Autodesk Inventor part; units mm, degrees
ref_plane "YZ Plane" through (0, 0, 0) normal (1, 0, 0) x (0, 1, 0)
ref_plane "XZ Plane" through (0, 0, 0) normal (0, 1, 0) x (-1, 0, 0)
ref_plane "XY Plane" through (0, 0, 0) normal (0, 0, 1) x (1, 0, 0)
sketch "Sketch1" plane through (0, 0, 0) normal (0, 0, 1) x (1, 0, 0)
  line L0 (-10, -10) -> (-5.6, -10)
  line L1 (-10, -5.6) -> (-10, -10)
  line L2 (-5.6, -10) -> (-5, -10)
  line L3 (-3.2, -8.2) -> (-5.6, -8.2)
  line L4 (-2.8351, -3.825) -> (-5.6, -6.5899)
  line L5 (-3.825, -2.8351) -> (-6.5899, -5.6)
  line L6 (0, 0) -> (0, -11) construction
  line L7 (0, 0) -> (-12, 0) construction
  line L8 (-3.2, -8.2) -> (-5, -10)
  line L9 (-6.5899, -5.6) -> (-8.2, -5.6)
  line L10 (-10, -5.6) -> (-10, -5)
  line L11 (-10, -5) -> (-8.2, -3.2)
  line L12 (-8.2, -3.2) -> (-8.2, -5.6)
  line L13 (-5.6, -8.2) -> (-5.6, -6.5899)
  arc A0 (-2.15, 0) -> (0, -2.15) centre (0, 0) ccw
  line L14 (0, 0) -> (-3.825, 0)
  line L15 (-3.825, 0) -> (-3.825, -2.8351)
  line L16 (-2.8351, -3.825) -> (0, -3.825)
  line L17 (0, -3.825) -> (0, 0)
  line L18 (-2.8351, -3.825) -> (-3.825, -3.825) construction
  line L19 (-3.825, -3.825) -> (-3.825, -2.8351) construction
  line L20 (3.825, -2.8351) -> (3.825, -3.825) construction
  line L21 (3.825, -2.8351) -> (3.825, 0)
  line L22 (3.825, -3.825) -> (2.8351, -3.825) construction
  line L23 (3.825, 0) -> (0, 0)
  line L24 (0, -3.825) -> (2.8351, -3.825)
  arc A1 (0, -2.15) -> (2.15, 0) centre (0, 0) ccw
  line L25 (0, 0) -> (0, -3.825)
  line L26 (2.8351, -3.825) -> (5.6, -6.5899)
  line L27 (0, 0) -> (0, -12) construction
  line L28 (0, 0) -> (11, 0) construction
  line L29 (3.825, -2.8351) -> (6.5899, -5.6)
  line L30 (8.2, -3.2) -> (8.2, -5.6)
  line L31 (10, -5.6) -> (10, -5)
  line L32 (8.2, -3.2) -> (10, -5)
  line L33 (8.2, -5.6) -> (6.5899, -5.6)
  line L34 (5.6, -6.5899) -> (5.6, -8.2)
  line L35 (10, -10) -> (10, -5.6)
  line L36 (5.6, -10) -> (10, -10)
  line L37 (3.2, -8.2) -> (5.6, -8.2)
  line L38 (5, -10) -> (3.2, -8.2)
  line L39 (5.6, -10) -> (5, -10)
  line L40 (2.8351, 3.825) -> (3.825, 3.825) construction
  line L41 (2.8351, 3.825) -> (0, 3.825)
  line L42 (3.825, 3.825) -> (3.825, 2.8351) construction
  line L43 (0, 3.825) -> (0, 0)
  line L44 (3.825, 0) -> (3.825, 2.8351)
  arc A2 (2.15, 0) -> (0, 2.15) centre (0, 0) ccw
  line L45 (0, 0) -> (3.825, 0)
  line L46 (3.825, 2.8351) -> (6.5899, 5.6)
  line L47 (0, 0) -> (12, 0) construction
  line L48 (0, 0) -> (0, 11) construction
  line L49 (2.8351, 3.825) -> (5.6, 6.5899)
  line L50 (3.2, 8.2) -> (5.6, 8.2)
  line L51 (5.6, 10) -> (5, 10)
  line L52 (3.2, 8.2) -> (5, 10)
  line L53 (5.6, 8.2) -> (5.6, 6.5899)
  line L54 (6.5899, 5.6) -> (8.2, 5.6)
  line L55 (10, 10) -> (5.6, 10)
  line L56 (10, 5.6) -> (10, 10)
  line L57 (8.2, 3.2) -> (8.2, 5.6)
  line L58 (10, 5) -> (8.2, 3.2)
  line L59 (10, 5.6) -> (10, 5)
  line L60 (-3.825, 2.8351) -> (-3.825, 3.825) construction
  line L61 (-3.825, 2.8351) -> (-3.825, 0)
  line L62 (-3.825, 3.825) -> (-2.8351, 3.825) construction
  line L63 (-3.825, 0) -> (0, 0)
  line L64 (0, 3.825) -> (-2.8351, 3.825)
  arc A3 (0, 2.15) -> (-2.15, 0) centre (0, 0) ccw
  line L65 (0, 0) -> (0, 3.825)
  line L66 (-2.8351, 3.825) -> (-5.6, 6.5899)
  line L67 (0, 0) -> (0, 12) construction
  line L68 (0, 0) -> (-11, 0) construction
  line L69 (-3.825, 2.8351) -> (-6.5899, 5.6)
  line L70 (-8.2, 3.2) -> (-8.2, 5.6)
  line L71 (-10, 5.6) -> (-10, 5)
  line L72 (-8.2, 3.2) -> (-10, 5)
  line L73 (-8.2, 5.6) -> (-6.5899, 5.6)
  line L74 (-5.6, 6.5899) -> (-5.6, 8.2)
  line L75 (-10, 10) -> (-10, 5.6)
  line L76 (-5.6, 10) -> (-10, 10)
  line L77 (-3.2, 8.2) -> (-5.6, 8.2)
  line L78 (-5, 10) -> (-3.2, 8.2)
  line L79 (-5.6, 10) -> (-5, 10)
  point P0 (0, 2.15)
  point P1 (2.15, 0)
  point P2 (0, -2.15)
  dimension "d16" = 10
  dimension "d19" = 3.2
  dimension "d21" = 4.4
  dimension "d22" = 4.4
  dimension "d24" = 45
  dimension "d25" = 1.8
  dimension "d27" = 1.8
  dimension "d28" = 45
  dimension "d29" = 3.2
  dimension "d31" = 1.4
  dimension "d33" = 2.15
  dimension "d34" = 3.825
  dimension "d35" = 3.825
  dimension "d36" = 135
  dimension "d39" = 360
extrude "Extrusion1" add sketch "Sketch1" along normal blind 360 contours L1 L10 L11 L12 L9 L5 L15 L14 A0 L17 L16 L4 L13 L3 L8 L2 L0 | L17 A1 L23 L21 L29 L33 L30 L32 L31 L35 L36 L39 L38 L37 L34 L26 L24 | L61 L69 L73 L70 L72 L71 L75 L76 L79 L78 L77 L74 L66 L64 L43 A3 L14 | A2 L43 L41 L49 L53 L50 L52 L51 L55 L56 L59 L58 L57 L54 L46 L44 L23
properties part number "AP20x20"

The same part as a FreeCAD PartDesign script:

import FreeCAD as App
import Part
import Sketcher
Q = App.Units.Quantity

doc = App.newDocument("Part")
params = doc.addObject("Spreadsheet::Sheet", "Params")
for row, (alias, value) in enumerate([
    ("sketch1_diameter", "4.3 mm"),
    ("sketch1_width", "1.61 mm"),
    ("pad1_length", "360 mm"),
], start=1):
    params.set(f"A{row}", alias)
    params.set(f"B{row}", "=" + value)
    params.setAlias(f"B{row}", alias)

body = doc.addObject("PartDesign::Body", "Body")

# Sketch on XY plane
sketch1 = body.newObject("Sketcher::SketchObject", "Sketch")
sketch1.AttachmentSupport = (doc.getObject("XY_Plane"), [""])
sketch1.MapMode = "FlatFace"
sketch1.addGeometry([
    Part.LineSegment(App.Vector(-10, -10, 0), App.Vector(-5, -10, 0)),  # 0
    Part.LineSegment(App.Vector(-5, -10, 0), App.Vector(-3.2, -8.2, 0)),  # 1
    Part.LineSegment(App.Vector(-3.2, -8.2, 0), App.Vector(-5.6, -8.2, 0)),  # 2
    Part.LineSegment(App.Vector(-5.6, -8.2, 0), App.Vector(-5.6, -6.6, 0)),  # 3
    Part.LineSegment(App.Vector(-5.6, -6.6, 0), App.Vector(-2.8, -3.8, 0)),  # 4
    Part.LineSegment(App.Vector(-2.8, -3.8, 0), App.Vector(2.8, -3.8, 0)),  # 5
    Part.LineSegment(App.Vector(2.8, -3.8, 0), App.Vector(5.6, -6.6, 0)),  # 6
    Part.LineSegment(App.Vector(5.6, -6.6, 0), App.Vector(5.6, -8.2, 0)),  # 7
    Part.LineSegment(App.Vector(5.6, -8.2, 0), App.Vector(3.2, -8.2, 0)),  # 8
    Part.LineSegment(App.Vector(3.2, -8.2, 0), App.Vector(5, -10, 0)),  # 9
    Part.LineSegment(App.Vector(5, -10, 0), App.Vector(10, -10, 0)),  # 10
    Part.LineSegment(App.Vector(10, -10, 0), App.Vector(10, -5, 0)),  # 11
    Part.LineSegment(App.Vector(10, -5, 0), App.Vector(8.2, -3.2, 0)),  # 12
    Part.LineSegment(App.Vector(8.2, -3.2, 0), App.Vector(8.2, -5.6, 0)),  # 13
    Part.LineSegment(App.Vector(8.2, -5.6, 0), App.Vector(6.6, -5.6, 0)),  # 14
    Part.LineSegment(App.Vector(6.6, -5.6, 0), App.Vector(3.8, -2.8, 0)),  # 15
    Part.LineSegment(App.Vector(3.8, -2.8, 0), App.Vector(3.8, 2.8, 0)),  # 16
    Part.LineSegment(App.Vector(3.8, 2.8, 0), App.Vector(6.6, 5.6, 0)),  # 17
    Part.LineSegment(App.Vector(6.6, 5.6, 0), App.Vector(8.2, 5.6, 0)),  # 18
    Part.LineSegment(App.Vector(8.2, 5.6, 0), App.Vector(8.2, 3.2, 0)),  # 19
    Part.LineSegment(App.Vector(8.2, 3.2, 0), App.Vector(10, 5, 0)),  # 20
    Part.LineSegment(App.Vector(10, 5, 0), App.Vector(10, 10, 0)),  # 21
    Part.LineSegment(App.Vector(10, 10, 0), App.Vector(5, 10, 0)),  # 22
    Part.LineSegment(App.Vector(5, 10, 0), App.Vector(3.2, 8.2, 0)),  # 23
    Part.LineSegment(App.Vector(3.2, 8.2, 0), App.Vector(5.6, 8.2, 0)),  # 24
    Part.LineSegment(App.Vector(5.6, 8.2, 0), App.Vector(5.6, 6.6, 0)),  # 25
    Part.LineSegment(App.Vector(5.6, 6.6, 0), App.Vector(2.8, 3.8, 0)),  # 26
    Part.LineSegment(App.Vector(2.8, 3.8, 0), App.Vector(-2.8, 3.8, 0)),  # 27
    Part.LineSegment(App.Vector(-2.8, 3.8, 0), App.Vector(-5.6, 6.6, 0)),  # 28
    Part.LineSegment(App.Vector(-5.6, 6.6, 0), App.Vector(-5.6, 8.2, 0)),  # 29
    Part.LineSegment(App.Vector(-5.6, 8.2, 0), App.Vector(-3.2, 8.2, 0)),  # 30
    Part.LineSegment(App.Vector(-3.2, 8.2, 0), App.Vector(-5, 10, 0)),  # 31
    Part.LineSegment(App.Vector(-5, 10, 0), App.Vector(-10, 10, 0)),  # 32
    Part.LineSegment(App.Vector(-10, 10, 0), App.Vector(-10, 5, 0)),  # 33
    Part.LineSegment(App.Vector(-10, 5, 0), App.Vector(-8.2, 3.2, 0)),  # 34
    Part.LineSegment(App.Vector(-8.2, 3.2, 0), App.Vector(-8.2, 5.6, 0)),  # 35
    Part.LineSegment(App.Vector(-8.2, 5.6, 0), App.Vector(-6.6, 5.6, 0)),  # 36
    Part.LineSegment(App.Vector(-6.6, 5.6, 0), App.Vector(-3.8, 2.8, 0)),  # 37
    Part.LineSegment(App.Vector(-3.8, 2.8, 0), App.Vector(-3.8, -2.8, 0)),  # 38
    Part.LineSegment(App.Vector(-3.8, -2.8, 0), App.Vector(-6.6, -5.6, 0)),  # 39
    Part.LineSegment(App.Vector(-6.6, -5.6, 0), App.Vector(-8.2, -5.6, 0)),  # 40
    Part.LineSegment(App.Vector(-8.2, -5.6, 0), App.Vector(-8.2, -3.2, 0)),  # 41
    Part.LineSegment(App.Vector(-8.2, -3.2, 0), App.Vector(-10, -5, 0)),  # 42
    Part.LineSegment(App.Vector(-10, -5, 0), App.Vector(-10, -10, 0)),  # 43
    Part.Circle(App.Vector(0, 0, 0), App.Vector(0, 0, 1), 2.1),  # 44
], False)
sketch1.addConstraint([
    Sketcher.Constraint("Coincident", 0, 2, 1, 1),
    Sketcher.Constraint("Coincident", 1, 2, 2, 1),
    Sketcher.Constraint("Coincident", 2, 2, 3, 1),
    Sketcher.Constraint("Coincident", 3, 2, 4, 1),
    Sketcher.Constraint("Coincident", 4, 2, 5, 1),
    Sketcher.Constraint("Coincident", 5, 2, 6, 1),
    Sketcher.Constraint("Coincident", 6, 2, 7, 1),
    Sketcher.Constraint("Coincident", 7, 2, 8, 1),
    Sketcher.Constraint("Coincident", 8, 2, 9, 1),
    Sketcher.Constraint("Coincident", 9, 2, 10, 1),
    Sketcher.Constraint("Coincident", 10, 2, 11, 1),
    Sketcher.Constraint("Coincident", 11, 2, 12, 1),
    Sketcher.Constraint("Coincident", 12, 2, 13, 1),
    Sketcher.Constraint("Coincident", 13, 2, 14, 1),
    Sketcher.Constraint("Coincident", 14, 2, 15, 1),
    Sketcher.Constraint("Coincident", 15, 2, 16, 1),
    Sketcher.Constraint("Coincident", 16, 2, 17, 1),
    Sketcher.Constraint("Coincident", 17, 2, 18, 1),
    Sketcher.Constraint("Coincident", 18, 2, 19, 1),
    Sketcher.Constraint("Coincident", 19, 2, 20, 1),
    Sketcher.Constraint("Coincident", 20, 2, 21, 1),
    Sketcher.Constraint("Coincident", 21, 2, 22, 1),
    Sketcher.Constraint("Coincident", 22, 2, 23, 1),
    Sketcher.Constraint("Coincident", 23, 2, 24, 1),
    Sketcher.Constraint("Coincident", 24, 2, 25, 1),
    Sketcher.Constraint("Coincident", 25, 2, 26, 1),
    Sketcher.Constraint("Coincident", 26, 2, 27, 1),
    Sketcher.Constraint("Coincident", 27, 2, 28, 1),
    Sketcher.Constraint("Coincident", 28, 2, 29, 1),
    Sketcher.Constraint("Coincident", 29, 2, 30, 1),
    Sketcher.Constraint("Coincident", 30, 2, 31, 1),
    Sketcher.Constraint("Coincident", 31, 2, 32, 1),
    Sketcher.Constraint("Coincident", 32, 2, 33, 1),
    Sketcher.Constraint("Coincident", 33, 2, 34, 1),
    Sketcher.Constraint("Coincident", 34, 2, 35, 1),
    Sketcher.Constraint("Coincident", 35, 2, 36, 1),
    Sketcher.Constraint("Coincident", 36, 2, 37, 1),
    Sketcher.Constraint("Coincident", 37, 2, 38, 1),
    Sketcher.Constraint("Coincident", 38, 2, 39, 1),
    Sketcher.Constraint("Coincident", 39, 2, 40, 1),
    Sketcher.Constraint("Coincident", 40, 2, 41, 1),
    Sketcher.Constraint("Coincident", 41, 2, 42, 1),
    Sketcher.Constraint("Coincident", 42, 2, 43, 1),
    Sketcher.Constraint("Coincident", 43, 2, 0, 1),
    Sketcher.Constraint("Horizontal", 0),
    Sketcher.Constraint("Horizontal", 2),
    Sketcher.Constraint("Vertical", 3),
    Sketcher.Constraint("Horizontal", 5),
    Sketcher.Constraint("Vertical", 7),
    Sketcher.Constraint("Horizontal", 8),
    Sketcher.Constraint("Horizontal", 10),
    Sketcher.Constraint("Vertical", 11),
    Sketcher.Constraint("Vertical", 13),
    Sketcher.Constraint("Horizontal", 14),
    Sketcher.Constraint("Vertical", 16),
    Sketcher.Constraint("Horizontal", 18),
    Sketcher.Constraint("Vertical", 19),
    Sketcher.Constraint("Vertical", 21),
    Sketcher.Constraint("Horizontal", 22),
    Sketcher.Constraint("Horizontal", 24),
    Sketcher.Constraint("Vertical", 25),
    Sketcher.Constraint("Horizontal", 27),
    Sketcher.Constraint("Vertical", 29),
    Sketcher.Constraint("Horizontal", 30),
    Sketcher.Constraint("Horizontal", 32),
    Sketcher.Constraint("Vertical", 33),
    Sketcher.Constraint("Vertical", 35),
    Sketcher.Constraint("Horizontal", 36),
    Sketcher.Constraint("Vertical", 38),
    Sketcher.Constraint("Horizontal", 40),
    Sketcher.Constraint("Vertical", 41),
    Sketcher.Constraint("Vertical", 43),
    Sketcher.Constraint("Coincident", 44, 3, -1, 1),
    Sketcher.Constraint("Symmetric", 0, 2, 22, 2, -1, 1),
    Sketcher.Constraint("Symmetric", 1, 2, 23, 2, -1, 1),
    Sketcher.Constraint("Symmetric", 3, 2, 25, 2, -1, 1),
    Sketcher.Constraint("Symmetric", 4, 2, 26, 2, -1, 1),
    Sketcher.Constraint("Symmetric", 6, 2, 28, 2, -1, 1),
    Sketcher.Constraint("Symmetric", 8, 2, 30, 2, -1, 1),
    Sketcher.Constraint("Symmetric", 9, 2, 31, 2, -1, 1),
    Sketcher.Constraint("Symmetric", 11, 2, 33, 2, -1, 1),
    Sketcher.Constraint("Symmetric", 12, 2, 34, 2, -1, 1),
    Sketcher.Constraint("Symmetric", 14, 2, 36, 2, -1, 1),
    Sketcher.Constraint("Symmetric", 15, 2, 37, 2, -1, 1),
    Sketcher.Constraint("Symmetric", 17, 2, 39, 2, -1, 1),
    Sketcher.Constraint("Symmetric", 19, 2, 41, 2, -1, 1),
    Sketcher.Constraint("Symmetric", 20, 2, 42, 2, -1, 1),
    Sketcher.Constraint("Symmetric", 3, 2, 6, 2, -2),
    Sketcher.Constraint("Symmetric", 1, 2, 8, 2, -2),
    Sketcher.Constraint("Symmetric", 0, 2, 9, 2, -2),
    Sketcher.Constraint("Symmetric", 20, 2, 33, 2, -2),
    Sketcher.Constraint("Symmetric", 19, 2, 34, 2, -2),
    Sketcher.Constraint("Symmetric", 17, 2, 36, 2, -2),
    Sketcher.Constraint("Parallel", 1, 4),
    Sketcher.Constraint("Perpendicular", 4, 6),
    Sketcher.Constraint("Parallel", 6, 9),
    Sketcher.Constraint("Parallel", 9, 12),
    Sketcher.Constraint("Parallel", 12, 15),
    Sketcher.Constraint("Perpendicular", 15, 17),
    Sketcher.Constraint("Perpendicular", 26, 28),
    Sketcher.Constraint("Perpendicular", 37, 39),
    Sketcher.Constraint("Equal", 40, 3),
    Sketcher.Constraint("Equal", 32, 11),
    Sketcher.Constraint("Equal", 30, 13),
    Sketcher.Constraint("Equal", 27, 16),
    Sketcher.Constraint("Equal", 9, 12),
    Sketcher.Constraint("Equal", 6, 15),
    Sketcher.Constraint("Diameter", 44, Q("4.3 mm")),
    Sketcher.Constraint("DistanceY", 0, 2, -1, 1, Q("10 mm")),
    Sketcher.Constraint("DistanceX", 1, 2, -1, 1, Q("3.2 mm")),
    Sketcher.Constraint("DistanceX", 0, 2, 1, 2, Q("1.8 mm")),
    Sketcher.Constraint("DistanceX", 7, 2, 10, 2, Q("4.4 mm")),
    Sketcher.Constraint("DistanceY", 4, 2, -1, 1, Q("3.825 mm")),
    Sketcher.Constraint("DistanceX", 14, 2, 14, 1, Q("1.61 mm")),
])
sketch1.setExpression("Constraints[107]", "Params.sketch1_diameter")
sketch1.setExpression("Constraints[113]", "Params.sketch1_width")
pad1 = body.newObject("PartDesign::Pad", "Pad")
pad1.Profile = sketch1
pad1.setExpression("Length", "Params.pad1_length")

doc.recompute()
